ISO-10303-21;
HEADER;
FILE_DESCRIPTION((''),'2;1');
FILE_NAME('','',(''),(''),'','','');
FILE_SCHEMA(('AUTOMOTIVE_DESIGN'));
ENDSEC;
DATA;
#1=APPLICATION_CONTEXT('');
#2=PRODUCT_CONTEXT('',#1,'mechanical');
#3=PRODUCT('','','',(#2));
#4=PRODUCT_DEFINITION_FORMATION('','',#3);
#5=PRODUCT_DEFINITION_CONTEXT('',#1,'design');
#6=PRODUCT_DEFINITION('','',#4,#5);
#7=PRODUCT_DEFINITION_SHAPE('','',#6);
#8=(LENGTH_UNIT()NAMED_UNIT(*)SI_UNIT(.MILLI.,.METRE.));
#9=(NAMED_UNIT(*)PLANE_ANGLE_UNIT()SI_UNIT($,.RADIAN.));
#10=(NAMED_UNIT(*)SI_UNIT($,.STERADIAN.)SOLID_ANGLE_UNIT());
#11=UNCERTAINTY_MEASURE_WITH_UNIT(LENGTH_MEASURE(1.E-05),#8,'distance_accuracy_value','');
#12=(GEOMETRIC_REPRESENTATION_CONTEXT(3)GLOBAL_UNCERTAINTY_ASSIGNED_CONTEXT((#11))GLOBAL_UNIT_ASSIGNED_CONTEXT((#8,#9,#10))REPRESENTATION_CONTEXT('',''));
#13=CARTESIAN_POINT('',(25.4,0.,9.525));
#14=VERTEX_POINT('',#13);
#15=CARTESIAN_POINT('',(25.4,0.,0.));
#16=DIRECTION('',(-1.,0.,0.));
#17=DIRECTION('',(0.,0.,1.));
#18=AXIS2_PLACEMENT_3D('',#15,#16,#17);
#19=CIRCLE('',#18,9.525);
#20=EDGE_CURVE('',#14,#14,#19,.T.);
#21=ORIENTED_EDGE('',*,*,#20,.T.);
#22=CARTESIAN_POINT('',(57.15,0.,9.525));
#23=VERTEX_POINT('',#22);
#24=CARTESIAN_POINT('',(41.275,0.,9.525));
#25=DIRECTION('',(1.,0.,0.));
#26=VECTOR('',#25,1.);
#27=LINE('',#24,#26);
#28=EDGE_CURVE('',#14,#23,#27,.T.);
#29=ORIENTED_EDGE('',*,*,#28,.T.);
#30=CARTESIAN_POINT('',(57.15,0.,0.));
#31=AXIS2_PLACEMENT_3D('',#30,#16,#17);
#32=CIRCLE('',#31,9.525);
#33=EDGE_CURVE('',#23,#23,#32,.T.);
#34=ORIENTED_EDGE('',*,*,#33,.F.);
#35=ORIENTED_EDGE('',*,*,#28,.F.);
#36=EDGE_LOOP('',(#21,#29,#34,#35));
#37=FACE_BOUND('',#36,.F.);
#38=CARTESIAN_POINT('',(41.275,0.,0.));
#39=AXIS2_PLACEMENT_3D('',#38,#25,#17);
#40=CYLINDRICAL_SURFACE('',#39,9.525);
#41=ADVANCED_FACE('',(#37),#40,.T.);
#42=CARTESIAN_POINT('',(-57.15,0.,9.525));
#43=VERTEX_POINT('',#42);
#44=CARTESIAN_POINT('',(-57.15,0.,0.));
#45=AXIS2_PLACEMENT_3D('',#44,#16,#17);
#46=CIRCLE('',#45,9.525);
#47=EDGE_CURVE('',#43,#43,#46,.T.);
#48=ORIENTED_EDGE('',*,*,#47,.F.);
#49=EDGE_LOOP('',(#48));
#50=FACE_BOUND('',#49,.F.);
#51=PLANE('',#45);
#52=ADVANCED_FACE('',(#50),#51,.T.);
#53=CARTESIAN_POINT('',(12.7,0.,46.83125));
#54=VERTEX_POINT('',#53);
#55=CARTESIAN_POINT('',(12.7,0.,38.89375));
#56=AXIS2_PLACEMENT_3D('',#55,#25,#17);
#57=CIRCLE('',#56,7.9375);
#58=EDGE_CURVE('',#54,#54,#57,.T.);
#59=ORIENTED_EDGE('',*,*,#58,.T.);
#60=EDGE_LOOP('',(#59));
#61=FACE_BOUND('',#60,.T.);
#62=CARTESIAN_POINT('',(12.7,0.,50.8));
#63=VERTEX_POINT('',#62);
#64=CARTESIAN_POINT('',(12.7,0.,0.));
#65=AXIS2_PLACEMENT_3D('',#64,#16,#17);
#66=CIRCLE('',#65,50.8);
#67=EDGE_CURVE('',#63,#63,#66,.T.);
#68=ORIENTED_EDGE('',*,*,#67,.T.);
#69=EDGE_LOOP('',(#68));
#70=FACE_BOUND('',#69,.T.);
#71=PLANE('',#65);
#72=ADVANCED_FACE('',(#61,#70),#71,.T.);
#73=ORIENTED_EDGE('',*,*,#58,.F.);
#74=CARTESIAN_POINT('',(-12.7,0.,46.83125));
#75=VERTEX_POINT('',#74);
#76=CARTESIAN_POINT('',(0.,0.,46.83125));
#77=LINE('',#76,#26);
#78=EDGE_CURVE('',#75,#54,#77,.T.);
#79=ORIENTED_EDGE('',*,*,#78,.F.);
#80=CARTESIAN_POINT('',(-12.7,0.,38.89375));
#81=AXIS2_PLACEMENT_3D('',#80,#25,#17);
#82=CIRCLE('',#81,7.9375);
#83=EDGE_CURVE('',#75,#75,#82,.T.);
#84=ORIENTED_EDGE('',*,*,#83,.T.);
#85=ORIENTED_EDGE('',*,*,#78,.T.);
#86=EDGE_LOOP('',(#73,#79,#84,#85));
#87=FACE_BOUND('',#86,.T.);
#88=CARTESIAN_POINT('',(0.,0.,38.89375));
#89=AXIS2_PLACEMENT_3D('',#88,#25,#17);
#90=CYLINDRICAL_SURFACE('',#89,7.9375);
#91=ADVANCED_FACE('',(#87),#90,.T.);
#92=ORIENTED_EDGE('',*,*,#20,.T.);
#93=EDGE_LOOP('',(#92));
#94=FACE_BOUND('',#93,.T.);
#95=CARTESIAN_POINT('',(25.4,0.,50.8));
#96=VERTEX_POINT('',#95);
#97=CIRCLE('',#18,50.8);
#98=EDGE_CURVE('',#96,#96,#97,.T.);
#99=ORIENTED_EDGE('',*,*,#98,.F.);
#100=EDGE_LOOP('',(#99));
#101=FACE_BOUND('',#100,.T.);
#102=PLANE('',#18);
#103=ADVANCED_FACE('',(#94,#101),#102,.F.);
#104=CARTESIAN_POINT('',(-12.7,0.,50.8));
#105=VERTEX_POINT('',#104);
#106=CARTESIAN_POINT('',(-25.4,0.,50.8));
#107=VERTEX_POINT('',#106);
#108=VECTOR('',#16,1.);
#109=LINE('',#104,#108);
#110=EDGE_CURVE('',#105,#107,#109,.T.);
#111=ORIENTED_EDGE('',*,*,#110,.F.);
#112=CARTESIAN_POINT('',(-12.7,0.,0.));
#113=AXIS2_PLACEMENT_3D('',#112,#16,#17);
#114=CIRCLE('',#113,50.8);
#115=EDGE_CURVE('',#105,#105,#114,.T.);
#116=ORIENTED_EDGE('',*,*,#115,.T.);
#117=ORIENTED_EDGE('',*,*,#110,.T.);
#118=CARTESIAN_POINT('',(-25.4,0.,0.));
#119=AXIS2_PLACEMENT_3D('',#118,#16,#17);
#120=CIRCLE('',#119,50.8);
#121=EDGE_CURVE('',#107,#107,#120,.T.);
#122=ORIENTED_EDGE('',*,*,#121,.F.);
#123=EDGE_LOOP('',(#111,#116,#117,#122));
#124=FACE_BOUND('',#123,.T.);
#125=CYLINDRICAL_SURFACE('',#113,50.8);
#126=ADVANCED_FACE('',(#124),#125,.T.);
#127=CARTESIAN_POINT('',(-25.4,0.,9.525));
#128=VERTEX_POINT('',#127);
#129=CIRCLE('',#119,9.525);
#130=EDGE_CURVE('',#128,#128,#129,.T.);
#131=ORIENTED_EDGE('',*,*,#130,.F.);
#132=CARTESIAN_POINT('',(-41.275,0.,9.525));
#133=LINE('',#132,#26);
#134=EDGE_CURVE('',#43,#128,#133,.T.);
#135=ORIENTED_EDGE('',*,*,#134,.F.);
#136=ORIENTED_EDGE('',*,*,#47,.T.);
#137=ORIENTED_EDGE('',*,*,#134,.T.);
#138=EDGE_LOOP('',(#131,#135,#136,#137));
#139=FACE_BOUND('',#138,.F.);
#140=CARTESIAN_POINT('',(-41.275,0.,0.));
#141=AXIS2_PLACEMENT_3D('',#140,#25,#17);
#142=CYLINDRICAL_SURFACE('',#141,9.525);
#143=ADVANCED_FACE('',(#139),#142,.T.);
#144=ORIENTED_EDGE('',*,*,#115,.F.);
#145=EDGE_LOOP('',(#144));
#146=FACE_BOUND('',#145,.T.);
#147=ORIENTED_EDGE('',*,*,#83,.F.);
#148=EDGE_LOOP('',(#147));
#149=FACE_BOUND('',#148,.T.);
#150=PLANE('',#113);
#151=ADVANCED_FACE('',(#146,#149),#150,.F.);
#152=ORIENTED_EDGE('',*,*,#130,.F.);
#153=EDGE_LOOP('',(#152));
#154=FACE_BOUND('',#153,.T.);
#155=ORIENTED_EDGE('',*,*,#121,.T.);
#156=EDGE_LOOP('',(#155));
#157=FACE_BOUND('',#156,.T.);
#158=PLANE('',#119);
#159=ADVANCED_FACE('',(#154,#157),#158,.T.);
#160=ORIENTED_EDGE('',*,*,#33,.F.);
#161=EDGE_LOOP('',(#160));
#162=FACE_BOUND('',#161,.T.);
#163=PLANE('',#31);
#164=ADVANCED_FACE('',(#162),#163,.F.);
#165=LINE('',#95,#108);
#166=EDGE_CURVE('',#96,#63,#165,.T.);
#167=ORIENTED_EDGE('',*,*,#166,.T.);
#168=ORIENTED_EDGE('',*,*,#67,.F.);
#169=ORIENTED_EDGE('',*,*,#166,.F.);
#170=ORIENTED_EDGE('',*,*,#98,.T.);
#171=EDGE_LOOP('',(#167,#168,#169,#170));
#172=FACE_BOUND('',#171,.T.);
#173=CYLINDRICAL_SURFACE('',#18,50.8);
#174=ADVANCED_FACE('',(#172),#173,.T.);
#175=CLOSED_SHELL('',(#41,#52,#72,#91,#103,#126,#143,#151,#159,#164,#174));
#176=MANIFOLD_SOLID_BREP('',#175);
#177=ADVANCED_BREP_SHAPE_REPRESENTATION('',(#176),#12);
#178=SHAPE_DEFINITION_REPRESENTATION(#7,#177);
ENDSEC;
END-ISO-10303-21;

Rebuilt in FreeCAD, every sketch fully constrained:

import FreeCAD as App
import Part
import Sketcher

V = App.Vector
Q = App.Units.Quantity


def add_polygon(sketch, points):
    """Adds a closed chain of lines whose ends are joined by coincident constraints."""
    first, n = sketch.GeometryCount, len(points)
    for a, b in zip(points, points[1:] + points[:1]):
        sketch.addGeometry(Part.LineSegment(App.Vector(*a, 0), App.Vector(*b, 0)), False)
    for i in range(n):
        sketch.addConstraint(Sketcher.Constraint("Coincident", first + i, 2, first + (i + 1) % n, 1))

doc = App.newDocument("Part")
body = doc.addObject("PartDesign::Body", "Body")

sketch1 = body.newObject("Sketcher::SketchObject", "Sketch")
sketch1.AttachmentSupport = (doc.getObject("XZ_Plane"), [""])
sketch1.MapMode = "FlatFace"
add_polygon(sketch1, [(-57, 10), (-57, 0), (-13, 0), (-13, 51), (-25, 51), (-25, 10)])
sketch1.addConstraint([
    Sketcher.Constraint("Vertical", 0),
    Sketcher.Constraint("Horizontal", 1),
    Sketcher.Constraint("Vertical", 2),
    Sketcher.Constraint("Horizontal", 3),
    Sketcher.Constraint("Vertical", 4),
    Sketcher.Constraint("Horizontal", 5),
    Sketcher.Constraint("PointOnObject", 0, 2, -1),
    Sketcher.Constraint("DistanceY", 2, 1, 2, 2, Q("2 in")),
    Sketcher.Constraint("DistanceX", 3, 2, 3, 1, Q("0.5 in")),
    Sketcher.Constraint("DistanceX", 3, 2, -1, 1, Q("1 in")),
    Sketcher.Constraint("DistanceX", 1, 1, 1, 2, Q("1.75 in")),
    Sketcher.Constraint("DistanceY", 0, 2, 0, 1, Q("0.375 in")),
])
revolution = body.newObject("PartDesign::Revolution", "Revolution")
revolution.Profile = sketch1
revolution.ReferenceAxis = (sketch1, ["H_Axis"])
revolution.Angle = 360
body2 = doc.addObject("PartDesign::Body", "Body001")

sketch2 = body2.newObject("Sketcher::SketchObject", "Sketch001")
sketch2.AttachmentSupport = (doc.getObject("XZ_Plane001"), [""])
sketch2.MapMode = "FlatFace"
add_polygon(sketch2, [(13, 0), (57, 0), (57, 10), (25, 10), (25, 51), (13, 51)])
sketch2.addConstraint([
    Sketcher.Constraint("Horizontal", 0),
    Sketcher.Constraint("Vertical", 1),
    Sketcher.Constraint("Horizontal", 2),
    Sketcher.Constraint("Vertical", 3),
    Sketcher.Constraint("Horizontal", 4),
    Sketcher.Constraint("Vertical", 5),
    Sketcher.Constraint("PointOnObject", 0, 2, -1),
    Sketcher.Constraint("DistanceY", 5, 2, 5, 1, Q("2 in")),
    Sketcher.Constraint("DistanceX", 4, 2, 4, 1, Q("0.5 in")),
    Sketcher.Constraint("DistanceX", -1, 1, 2, 2, Q("1 in")),
    Sketcher.Constraint("DistanceX", 0, 1, 0, 2, Q("1.75 in")),
    Sketcher.Constraint("DistanceY", 1, 1, 1, 2, Q("0.375 in")),
])
revolution2 = body2.newObject("PartDesign::Revolution", "Revolution001")
revolution2.Profile = sketch2
revolution2.ReferenceAxis = (sketch2, ["H_Axis"])
revolution2.Angle = 360
body.AllowCompound = True
doc.recompute()

boolean = body.newObject("PartDesign::Boolean", "Boolean")
boolean.Type = "Fuse"
boolean.addObjects([body2])

sketch3 = body.newObject("Sketcher::SketchObject", "Sketch002")
sketch3.AttachmentSupport = (doc.getObject("XZ_Plane"), [""])
sketch3.MapMode = "FlatFace"
add_polygon(sketch3, [(-13, 47), (-13, 39), (13, 39), (13, 47)])
sketch3.addGeometry(Part.LineSegment(V(-13, 39, 0), V(13, 39, 0)), True)
sketch3.addConstraint([
    Sketcher.Constraint("Vertical", 0),
    Sketcher.Constraint("Horizontal", 1),
    Sketcher.Constraint("Vertical", 2),
    Sketcher.Constraint("Horizontal", 3),
    Sketcher.Constraint("Horizontal", 4),
    Sketcher.Constraint("Coincident", 4, 1, 0, 2),
    Sketcher.Constraint("Vertical", 2, 2, 4, 2),
    Sketcher.Constraint("DistanceX", 1, 1, 1, 2, Q("1 in")),
    Sketcher.Constraint("DistanceX", 0, 2, -1, 1, Q("0.5 in")),
    Sketcher.Constraint("DistanceY", 0, 2, 0, 1, Q("0.3125 in")),
    Sketcher.Constraint("DistanceY", -1, 1, 0, 2, Q("1.53125 in")),
])
revolution3 = body.newObject("PartDesign::Revolution", "Revolution002")
revolution3.Profile = sketch3
revolution3.ReferenceAxis = (sketch3, ["Axis0"])
revolution3.Angle = 360

doc.recompute()
